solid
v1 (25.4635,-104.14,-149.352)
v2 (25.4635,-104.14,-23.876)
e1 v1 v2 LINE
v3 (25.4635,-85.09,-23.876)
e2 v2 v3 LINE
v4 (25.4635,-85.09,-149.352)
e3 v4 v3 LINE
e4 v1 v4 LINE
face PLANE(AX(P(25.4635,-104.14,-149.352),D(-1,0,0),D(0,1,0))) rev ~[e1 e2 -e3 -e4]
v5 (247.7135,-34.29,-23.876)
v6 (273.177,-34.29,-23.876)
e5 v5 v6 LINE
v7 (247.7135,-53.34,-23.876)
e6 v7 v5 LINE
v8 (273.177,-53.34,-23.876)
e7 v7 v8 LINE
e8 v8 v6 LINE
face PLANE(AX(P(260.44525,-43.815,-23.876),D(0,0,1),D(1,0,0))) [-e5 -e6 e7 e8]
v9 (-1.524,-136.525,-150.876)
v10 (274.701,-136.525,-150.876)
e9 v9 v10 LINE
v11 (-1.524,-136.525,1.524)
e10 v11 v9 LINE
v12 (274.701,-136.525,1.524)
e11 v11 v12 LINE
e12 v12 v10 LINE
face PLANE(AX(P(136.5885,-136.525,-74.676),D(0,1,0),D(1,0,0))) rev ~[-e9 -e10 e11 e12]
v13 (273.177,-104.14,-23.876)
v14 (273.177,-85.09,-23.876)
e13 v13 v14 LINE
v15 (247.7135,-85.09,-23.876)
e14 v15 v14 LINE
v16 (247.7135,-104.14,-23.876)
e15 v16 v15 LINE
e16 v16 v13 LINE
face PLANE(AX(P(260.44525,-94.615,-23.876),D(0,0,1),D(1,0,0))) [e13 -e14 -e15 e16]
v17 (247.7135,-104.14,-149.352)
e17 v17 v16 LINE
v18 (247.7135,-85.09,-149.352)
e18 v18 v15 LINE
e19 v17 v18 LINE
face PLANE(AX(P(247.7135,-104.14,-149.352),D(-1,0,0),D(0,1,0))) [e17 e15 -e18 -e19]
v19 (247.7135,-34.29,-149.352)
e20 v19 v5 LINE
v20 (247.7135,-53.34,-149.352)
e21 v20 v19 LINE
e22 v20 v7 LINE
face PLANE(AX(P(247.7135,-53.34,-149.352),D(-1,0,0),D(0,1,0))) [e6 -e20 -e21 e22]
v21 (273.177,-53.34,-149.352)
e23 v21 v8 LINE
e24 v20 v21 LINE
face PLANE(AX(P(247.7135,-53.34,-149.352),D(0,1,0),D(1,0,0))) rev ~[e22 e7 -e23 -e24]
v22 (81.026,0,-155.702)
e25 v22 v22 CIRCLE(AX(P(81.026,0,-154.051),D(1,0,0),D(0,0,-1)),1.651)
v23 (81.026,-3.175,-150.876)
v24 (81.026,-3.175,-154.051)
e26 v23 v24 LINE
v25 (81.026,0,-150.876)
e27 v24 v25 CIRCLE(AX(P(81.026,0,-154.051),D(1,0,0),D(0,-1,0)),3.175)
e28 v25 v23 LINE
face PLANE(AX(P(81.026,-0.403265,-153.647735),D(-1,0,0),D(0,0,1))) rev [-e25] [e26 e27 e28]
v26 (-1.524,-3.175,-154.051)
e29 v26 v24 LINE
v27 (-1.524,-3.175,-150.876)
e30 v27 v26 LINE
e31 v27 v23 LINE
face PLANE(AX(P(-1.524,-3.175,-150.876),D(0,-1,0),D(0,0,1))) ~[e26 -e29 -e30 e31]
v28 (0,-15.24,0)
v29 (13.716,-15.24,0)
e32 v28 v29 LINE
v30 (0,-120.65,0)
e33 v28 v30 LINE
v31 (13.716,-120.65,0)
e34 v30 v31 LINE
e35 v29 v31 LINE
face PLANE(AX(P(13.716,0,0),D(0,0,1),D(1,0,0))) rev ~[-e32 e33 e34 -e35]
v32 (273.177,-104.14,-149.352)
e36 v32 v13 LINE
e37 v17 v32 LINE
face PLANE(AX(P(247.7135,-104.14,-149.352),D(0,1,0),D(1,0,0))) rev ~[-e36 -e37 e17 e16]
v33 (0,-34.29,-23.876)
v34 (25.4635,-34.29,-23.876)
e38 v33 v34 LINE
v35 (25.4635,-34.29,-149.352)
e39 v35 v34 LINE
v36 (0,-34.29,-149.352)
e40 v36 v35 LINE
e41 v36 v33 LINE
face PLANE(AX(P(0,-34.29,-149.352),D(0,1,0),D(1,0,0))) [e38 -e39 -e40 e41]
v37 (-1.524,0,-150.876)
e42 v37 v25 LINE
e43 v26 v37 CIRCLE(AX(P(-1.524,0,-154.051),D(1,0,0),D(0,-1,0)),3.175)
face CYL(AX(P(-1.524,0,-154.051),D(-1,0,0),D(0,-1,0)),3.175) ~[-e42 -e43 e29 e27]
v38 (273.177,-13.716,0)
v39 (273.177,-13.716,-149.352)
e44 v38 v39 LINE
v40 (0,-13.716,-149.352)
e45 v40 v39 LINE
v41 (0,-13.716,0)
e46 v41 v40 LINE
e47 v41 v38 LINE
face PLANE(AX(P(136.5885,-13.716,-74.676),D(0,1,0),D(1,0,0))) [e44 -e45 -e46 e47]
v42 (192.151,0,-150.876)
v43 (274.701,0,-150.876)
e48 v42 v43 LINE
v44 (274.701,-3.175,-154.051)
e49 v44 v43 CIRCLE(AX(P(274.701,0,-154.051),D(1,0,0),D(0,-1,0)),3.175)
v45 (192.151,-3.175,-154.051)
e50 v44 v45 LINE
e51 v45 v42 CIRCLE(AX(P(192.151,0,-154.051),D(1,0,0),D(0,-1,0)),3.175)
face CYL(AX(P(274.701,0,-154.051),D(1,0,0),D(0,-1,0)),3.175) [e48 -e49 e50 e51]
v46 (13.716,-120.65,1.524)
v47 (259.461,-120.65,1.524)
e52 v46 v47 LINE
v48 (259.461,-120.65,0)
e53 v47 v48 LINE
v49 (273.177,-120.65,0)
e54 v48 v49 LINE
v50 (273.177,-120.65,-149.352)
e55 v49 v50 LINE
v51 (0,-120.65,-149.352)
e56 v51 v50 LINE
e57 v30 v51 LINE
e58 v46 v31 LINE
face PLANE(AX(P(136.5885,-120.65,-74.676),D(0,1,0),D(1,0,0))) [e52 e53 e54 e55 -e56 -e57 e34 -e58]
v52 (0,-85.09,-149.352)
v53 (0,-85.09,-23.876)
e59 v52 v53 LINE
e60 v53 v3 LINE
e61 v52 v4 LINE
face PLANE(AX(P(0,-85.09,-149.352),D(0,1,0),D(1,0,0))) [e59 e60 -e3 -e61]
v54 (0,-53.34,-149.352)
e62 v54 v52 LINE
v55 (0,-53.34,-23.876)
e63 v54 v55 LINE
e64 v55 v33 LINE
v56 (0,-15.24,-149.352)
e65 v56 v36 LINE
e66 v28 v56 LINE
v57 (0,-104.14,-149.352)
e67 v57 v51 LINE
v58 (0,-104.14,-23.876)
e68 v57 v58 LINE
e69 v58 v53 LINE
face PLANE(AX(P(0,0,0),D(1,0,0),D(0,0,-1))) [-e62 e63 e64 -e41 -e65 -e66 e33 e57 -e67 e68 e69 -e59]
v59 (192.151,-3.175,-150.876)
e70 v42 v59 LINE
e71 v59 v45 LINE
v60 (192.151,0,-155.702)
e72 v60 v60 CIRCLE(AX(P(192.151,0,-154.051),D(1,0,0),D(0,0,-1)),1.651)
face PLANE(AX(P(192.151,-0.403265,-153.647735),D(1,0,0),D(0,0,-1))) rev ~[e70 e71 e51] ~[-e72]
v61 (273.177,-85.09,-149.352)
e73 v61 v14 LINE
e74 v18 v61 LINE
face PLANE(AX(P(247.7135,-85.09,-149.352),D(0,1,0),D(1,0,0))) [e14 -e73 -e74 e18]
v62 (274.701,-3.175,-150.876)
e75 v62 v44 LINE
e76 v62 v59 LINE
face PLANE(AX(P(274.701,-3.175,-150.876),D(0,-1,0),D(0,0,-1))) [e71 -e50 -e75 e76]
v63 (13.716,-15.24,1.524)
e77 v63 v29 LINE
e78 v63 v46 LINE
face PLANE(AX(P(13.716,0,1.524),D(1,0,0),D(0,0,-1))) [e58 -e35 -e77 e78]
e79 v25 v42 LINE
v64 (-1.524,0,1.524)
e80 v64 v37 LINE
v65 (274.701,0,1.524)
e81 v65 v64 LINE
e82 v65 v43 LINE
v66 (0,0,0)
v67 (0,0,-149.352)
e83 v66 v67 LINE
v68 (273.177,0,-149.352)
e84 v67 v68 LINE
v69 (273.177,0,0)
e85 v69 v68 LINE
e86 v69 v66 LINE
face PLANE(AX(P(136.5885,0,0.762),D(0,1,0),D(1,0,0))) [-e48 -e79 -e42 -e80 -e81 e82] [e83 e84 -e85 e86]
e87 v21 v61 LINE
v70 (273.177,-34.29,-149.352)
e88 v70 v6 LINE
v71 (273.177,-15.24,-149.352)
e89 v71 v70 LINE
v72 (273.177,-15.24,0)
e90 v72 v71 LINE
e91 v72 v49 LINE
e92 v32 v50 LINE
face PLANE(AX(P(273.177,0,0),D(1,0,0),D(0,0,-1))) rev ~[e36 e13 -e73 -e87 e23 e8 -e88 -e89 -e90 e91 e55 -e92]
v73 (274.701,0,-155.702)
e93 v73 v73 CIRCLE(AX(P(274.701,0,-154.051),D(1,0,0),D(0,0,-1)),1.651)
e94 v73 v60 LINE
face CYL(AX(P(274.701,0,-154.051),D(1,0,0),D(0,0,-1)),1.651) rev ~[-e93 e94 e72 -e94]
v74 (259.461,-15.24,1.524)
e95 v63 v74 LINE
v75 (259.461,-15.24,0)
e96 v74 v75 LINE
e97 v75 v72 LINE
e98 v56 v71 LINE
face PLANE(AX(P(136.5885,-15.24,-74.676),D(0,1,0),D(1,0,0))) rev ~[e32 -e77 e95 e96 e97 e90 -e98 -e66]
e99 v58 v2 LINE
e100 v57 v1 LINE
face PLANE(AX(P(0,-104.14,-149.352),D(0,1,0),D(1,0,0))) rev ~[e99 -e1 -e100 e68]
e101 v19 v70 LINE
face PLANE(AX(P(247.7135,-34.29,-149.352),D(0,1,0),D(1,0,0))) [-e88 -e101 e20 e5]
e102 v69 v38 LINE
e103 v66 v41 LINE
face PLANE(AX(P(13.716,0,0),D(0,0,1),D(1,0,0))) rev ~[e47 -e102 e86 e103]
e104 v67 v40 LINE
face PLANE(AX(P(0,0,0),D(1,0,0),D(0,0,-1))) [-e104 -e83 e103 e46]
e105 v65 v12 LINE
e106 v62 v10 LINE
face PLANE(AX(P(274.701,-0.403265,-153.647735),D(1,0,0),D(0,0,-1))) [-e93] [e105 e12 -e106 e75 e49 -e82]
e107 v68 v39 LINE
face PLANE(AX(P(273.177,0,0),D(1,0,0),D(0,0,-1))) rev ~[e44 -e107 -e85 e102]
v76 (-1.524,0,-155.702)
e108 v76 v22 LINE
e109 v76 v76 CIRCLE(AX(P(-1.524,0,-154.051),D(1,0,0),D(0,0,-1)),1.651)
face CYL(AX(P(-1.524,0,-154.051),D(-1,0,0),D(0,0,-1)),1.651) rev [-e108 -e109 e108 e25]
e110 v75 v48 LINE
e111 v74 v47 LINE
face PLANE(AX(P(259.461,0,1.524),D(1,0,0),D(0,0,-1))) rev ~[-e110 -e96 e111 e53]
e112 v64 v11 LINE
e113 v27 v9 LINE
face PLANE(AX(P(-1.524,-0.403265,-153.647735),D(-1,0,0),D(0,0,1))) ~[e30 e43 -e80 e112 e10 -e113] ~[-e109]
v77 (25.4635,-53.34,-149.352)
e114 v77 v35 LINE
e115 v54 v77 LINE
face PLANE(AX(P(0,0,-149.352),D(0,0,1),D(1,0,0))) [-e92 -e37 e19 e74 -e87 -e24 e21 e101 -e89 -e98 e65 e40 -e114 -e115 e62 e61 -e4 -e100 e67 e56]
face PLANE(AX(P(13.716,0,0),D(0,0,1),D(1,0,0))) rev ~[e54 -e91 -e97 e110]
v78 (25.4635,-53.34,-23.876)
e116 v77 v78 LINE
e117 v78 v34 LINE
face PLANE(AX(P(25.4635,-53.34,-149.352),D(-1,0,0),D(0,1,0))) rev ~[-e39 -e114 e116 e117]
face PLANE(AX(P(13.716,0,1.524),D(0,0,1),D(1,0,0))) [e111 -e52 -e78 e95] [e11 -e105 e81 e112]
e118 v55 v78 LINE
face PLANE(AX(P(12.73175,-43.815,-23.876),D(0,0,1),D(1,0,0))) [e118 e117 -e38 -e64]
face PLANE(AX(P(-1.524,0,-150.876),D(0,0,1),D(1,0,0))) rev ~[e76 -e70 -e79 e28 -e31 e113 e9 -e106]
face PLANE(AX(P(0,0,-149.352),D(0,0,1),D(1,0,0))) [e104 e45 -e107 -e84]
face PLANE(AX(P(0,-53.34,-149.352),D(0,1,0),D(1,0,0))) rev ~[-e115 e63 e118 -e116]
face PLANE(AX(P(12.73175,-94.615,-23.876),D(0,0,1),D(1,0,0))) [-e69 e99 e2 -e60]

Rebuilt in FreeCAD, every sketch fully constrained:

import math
import FreeCAD as App
import Part
import Sketcher
from FreeCAD import Vector
Q = App.Units.Quantity


def add_polygon(sketch, points):
    """Adds a closed chain of lines whose ends are joined by coincident constraints."""
    first, n = sketch.GeometryCount, len(points)
    for a, b in zip(points, points[1:] + points[:1]):
        sketch.addGeometry(Part.LineSegment(App.Vector(*a, 0), App.Vector(*b, 0)), False)
    for i in range(n):
        sketch.addConstraint(Sketcher.Constraint("Coincident", first + i, 2, first + (i + 1) % n, 1))

doc = App.newDocument("Part")
body = doc.addObject("PartDesign::Body", "Body")

# Sketch on XZ plane
sketch1 = body.newObject("Sketcher::SketchObject", "Sketch")
sketch1.AttachmentSupport = (doc.getObject("XZ_Plane"), [""])
sketch1.MapMode = "FlatFace"
add_polygon(sketch1, [(-2, -151), (-2, 2), (275, 2), (275, -151)])  # lines 0-3
sketch1.addConstraint(Sketcher.Constraint("Vertical", 0))
sketch1.addConstraint(Sketcher.Constraint("Horizontal", 1))
sketch1.addConstraint(Sketcher.Constraint("Vertical", 2))
sketch1.addConstraint(Sketcher.Constraint("Horizontal", 3))
sketch1.addConstraint(Sketcher.Constraint("DistanceY", 0, 1, 0, 2, Q("6 in")))
sketch1.addConstraint(Sketcher.Constraint("DistanceX", 1, 1, 1, 2, Q("10.875 in")))
sketch1.addConstraint(Sketcher.Constraint("DistanceX", 0, 2, -1, 1, Q("0.06 in")))
sketch1.addConstraint(Sketcher.Constraint("DistanceY", -1, 1, 0, 2, Q("0.06 in")))
pad1 = body.newObject("PartDesign::Pad", "Pad")
pad1.Profile = sketch1
pad1.Length = Q("5.375 in")

# Sketch on XZ plane
sketch2 = body.newObject("Sketcher::SketchObject", "Sketch001")
sketch2.AttachmentSupport = (doc.getObject("XZ_Plane"), [""])
sketch2.MapMode = "FlatFace"
add_polygon(sketch2, [(0, -149.4), (0, 0), (13.7, 0), (13.7, 1.5), (259.5, 1.5), (259.5, 0), (273.2, 0), (273.2, -149.4)])  # lines 0-7
sketch2.addConstraint(Sketcher.Constraint("Vertical", 0))
sketch2.addConstraint(Sketcher.Constraint("Horizontal", 1))
sketch2.addConstraint(Sketcher.Constraint("Vertical", 2))
sketch2.addConstraint(Sketcher.Constraint("Horizontal", 3))
sketch2.addConstraint(Sketcher.Constraint("Vertical", 4))
sketch2.addConstraint(Sketcher.Constraint("Horizontal", 5))
sketch2.addConstraint(Sketcher.Constraint("Vertical", 6))
sketch2.addConstraint(Sketcher.Constraint("Horizontal", 7))
sketch2.addConstraint(Sketcher.Constraint("Coincident", 0, 2, -1, 1))
sketch2.addConstraint(Sketcher.Constraint("PointOnObject", 4, 2, -1))
sketch2.addConstraint(Sketcher.Constraint("Equal", 1, 5))
sketch2.addConstraint(Sketcher.Constraint("DistanceX", 1, 1, 1, 2, Q("0.54 in")))
sketch2.addConstraint(Sketcher.Constraint("DistanceY", 0, 1, 0, 2, Q("5.88 in")))
sketch2.addConstraint(Sketcher.Constraint("DistanceY", 2, 1, 2, 2, Q("0.06 in")))
sketch2.addConstraint(Sketcher.Constraint("DistanceX", 3, 1, 3, 2, Q("9.675 in")))
pocket1 = body.newObject("PartDesign::Pocket", "Pocket")
pocket1.Profile = sketch2
pocket1.Length = Q("4.75 in")
pocket1.Reversed = True

# Sketch on XZ plane
sketch3 = body.newObject("Sketcher::SketchObject", "Sketch002")
sketch3.AttachmentSupport = (doc.getObject("XZ_Plane"), [""])
sketch3.MapMode = "FlatFace"
add_polygon(sketch3, [(13.7, 0), (13.7, 1.5), (259.5, 1.5), (259.5, 0)])  # lines 0-3
sketch3.addConstraint(Sketcher.Constraint("Vertical", 0))
sketch3.addConstraint(Sketcher.Constraint("Horizontal", 1))
sketch3.addConstraint(Sketcher.Constraint("Vertical", 2))
sketch3.addConstraint(Sketcher.Constraint("Horizontal", 3))
sketch3.addConstraint(Sketcher.Constraint("PointOnObject", 2, 2, -1))
sketch3.addConstraint(Sketcher.Constraint("DistanceY", 0, 1, 0, 2, Q("0.06 in")))
sketch3.addConstraint(Sketcher.Constraint("DistanceX", 1, 1, 1, 2, Q("9.675 in")))
sketch3.addConstraint(Sketcher.Constraint("DistanceX", -1, 1, 0, 2, Q("0.54 in")))
pad2 = body.newObject("PartDesign::Pad", "Pad001")
pad2.Profile = sketch3
pad2.Length = Q("0.6 in")

# Sketch on XZ plane
sketch4 = body.newObject("Sketcher::SketchObject", "Sketch003")
sketch4.AttachmentSupport = (doc.getObject("XZ_Plane"), [""])
sketch4.MapMode = "FlatFace"
sketch4.AttachmentOffset = App.Placement(Vector(0, 0, 0.6 * 25.4), App.Rotation())
add_polygon(sketch4, [(0, -149), (0, 0), (273, 0), (273, -149)])  # lines 0-3
sketch4.addConstraint(Sketcher.Constraint("Vertical", 0))
sketch4.addConstraint(Sketcher.Constraint("Horizontal", 1))
sketch4.addConstraint(Sketcher.Constraint("Vertical", 2))
sketch4.addConstraint(Sketcher.Constraint("Horizontal", 3))
sketch4.addConstraint(Sketcher.Constraint("Coincident", 0, 2, -1, 1))
sketch4.addConstraint(Sketcher.Constraint("DistanceY", 0, 1, 0, 2, Q("5.88 in")))
sketch4.addConstraint(Sketcher.Constraint("DistanceX", 1, 1, 1, 2, Q("10.755 in")))
pad3 = body.newObject("PartDesign::Pad", "Pad002")
pad3.Profile = sketch4
pad3.Length = Q("0.06 in")
pad3.Reversed = True

# Sketch on YZ plane
sketch5 = body.newObject("Sketcher::SketchObject", "Sketch004")
sketch5.AttachmentSupport = (doc.getObject("YZ_Plane"), [""])
sketch5.MapMode = "FlatFace"
sketch5.AttachmentOffset = App.Placement(Vector(0, 0, 10.815 * 25.4), App.Rotation())
sketch5.addGeometry(Part.LineSegment(Vector(0, -150.9, 0), Vector(-3.2, -150.9, 0)), False)
sketch5.addGeometry(Part.LineSegment(Vector(-3.2, -150.9, 0), Vector(-3.2, -154.1, 0)), False)
sketch5.addGeometry(Part.ArcOfCircle(Part.Circle(Vector(0, -154.1, 0), Vector(0, 0, 1), 3.2), math.radians(180), math.radians(450)), False)
sketch5.addGeometry(Part.Circle(Vector(0, -154.1, 0), Vector(0, 0, 1), 1.7), False)
sketch5.addConstraint(Sketcher.Constraint("Coincident", 0, 2, 1, 1))
sketch5.addConstraint(Sketcher.Constraint("Tangent", 1, 2, 2, 1))
sketch5.addConstraint(Sketcher.Constraint("Tangent", 2, 2, 0, 1))
sketch5.addConstraint(Sketcher.Constraint("Horizontal", 0))
sketch5.addConstraint(Sketcher.Constraint("Vertical", 1))
sketch5.addConstraint(Sketcher.Constraint("Coincident", 3, 3, 2, 3))
sketch5.addConstraint(Sketcher.Constraint("PointOnObject", 2, 3, -2))
sketch5.addConstraint(Sketcher.Constraint("Diameter", 3, Q("0.13 in")))
sketch5.addConstraint(Sketcher.Constraint("Radius", 2, Q("0.125 in")))
sketch5.addConstraint(Sketcher.Constraint("DistanceY", 0, 2, -1, 1, Q("5.94 in")))
pad4 = body.newObject("PartDesign::Pad", "Pad003")
pad4.Profile = sketch5
pad4.Length = Q("3.25 in")
pad4.Reversed = True
doc.recompute()

datumplane = body.newObject("PartDesign::Plane", "DatumPlane")
datumplane.AttachmentSupport = (doc.getObject("YZ_Plane"), [""])
datumplane.MapMode = "FlatFace"
datumplane.AttachmentOffset = App.Placement(Vector(0, 0, 5.3775 * 25.4), App.Rotation())
mirrored = body.newObject("PartDesign::Mirrored", "Mirrored")
mirrored.Originals = [pad4]
mirrored.MirrorPlane = (datumplane, [""])
body.Tip = mirrored

# Sketch on XY plane
sketch6 = body.newObject("Sketcher::SketchObject", "Sketch005")
sketch6.AttachmentSupport = (doc.getObject("XY_Plane"), [""])
sketch6.MapMode = "FlatFace"
sketch6.AttachmentOffset = App.Placement(Vector(0, 0, -5.88 * 25.4), App.Rotation())
add_polygon(sketch6, [(0, -34), (0, -53), (25, -53), (25, -34)])  # lines 0-3
add_polygon(sketch6, [(248, -34), (248, -53), (273, -53), (273, -34)])  # lines 4-7
add_polygon(sketch6, [(0, -85), (0, -104), (25, -104), (25, -85)])  # lines 8-11
add_polygon(sketch6, [(248, -85), (248, -104), (273, -104), (273, -85)])  # lines 12-15
sketch6.addConstraint(Sketcher.Constraint("Vertical", 0))
sketch6.addConstraint(Sketcher.Constraint("Horizontal", 1))
sketch6.addConstraint(Sketcher.Constraint("Vertical", 2))
sketch6.addConstraint(Sketcher.Constraint("Horizontal", 3))
sketch6.addConstraint(Sketcher.Constraint("Vertical", 4))
sketch6.addConstraint(Sketcher.Constraint("Horizontal", 5))
sketch6.addConstraint(Sketcher.Constraint("Vertical", 6))
sketch6.addConstraint(Sketcher.Constraint("Horizontal", 7))
sketch6.addConstraint(Sketcher.Constraint("Vertical", 8))
sketch6.addConstraint(Sketcher.Constraint("Horizontal", 9))
sketch6.addConstraint(Sketcher.Constraint("Vertical", 10))
sketch6.addConstraint(Sketcher.Constraint("Horizontal", 11))
sketch6.addConstraint(Sketcher.Constraint("Vertical", 12))
sketch6.addConstraint(Sketcher.Constraint("Horizontal", 13))
sketch6.addConstraint(Sketcher.Constraint("Vertical", 14))
sketch6.addConstraint(Sketcher.Constraint("Horizontal", 15))
sketch6.addConstraint(Sketcher.Constraint("PointOnObject", 0, 2, -2))
sketch6.addConstraint(Sketcher.Constraint("PointOnObject", 8, 2, -2))
sketch6.addConstraint(Sketcher.Constraint("Horizontal", 1, 2, 4, 2))
sketch6.addConstraint(Sketcher.Constraint("Horizontal", 3, 2, 6, 2))
sketch6.addConstraint(Sketcher.Constraint("Horizontal", 9, 2, 12, 2))
sketch6.addConstraint(Sketcher.Constraint("Horizontal", 11, 2, 14, 2))
sketch6.addConstraint(Sketcher.Constraint("Vertical", 2, 2, 9, 2))
sketch6.addConstraint(Sketcher.Constraint("Vertical", 7, 2, 12, 2))
sketch6.addConstraint(Sketcher.Constraint("Vertical", 6, 2, 13, 2))
sketch6.addConstraint(Sketcher.Constraint("Equal", 3, 5))
sketch6.addConstraint(Sketcher.Constraint("Equal", 6, 8))
sketch6.addConstraint(Sketcher.Constraint("DistanceY", 8, 2, 0, 2, Q("2 in")))
sketch6.addConstraint(Sketcher.Constraint("DistanceY", 0, 2, 0, 1, Q("0.75 in")))
sketch6.addConstraint(Sketcher.Constraint("DistanceY", 0, 2, -1, 1, Q("2.1 in")))
sketch6.addConstraint(Sketcher.Constraint("DistanceX", 1, 2, 4, 2, Q("8.75 in")))
sketch6.addConstraint(Sketcher.Constraint("DistanceX", 1, 1, 1, 2, Q("1.0025 in")))
pad5 = body.newObject("PartDesign::Pad", "Pad004")
pad5.Profile = sketch6
pad5.Length = Q("4.94 in")

doc.recompute()
